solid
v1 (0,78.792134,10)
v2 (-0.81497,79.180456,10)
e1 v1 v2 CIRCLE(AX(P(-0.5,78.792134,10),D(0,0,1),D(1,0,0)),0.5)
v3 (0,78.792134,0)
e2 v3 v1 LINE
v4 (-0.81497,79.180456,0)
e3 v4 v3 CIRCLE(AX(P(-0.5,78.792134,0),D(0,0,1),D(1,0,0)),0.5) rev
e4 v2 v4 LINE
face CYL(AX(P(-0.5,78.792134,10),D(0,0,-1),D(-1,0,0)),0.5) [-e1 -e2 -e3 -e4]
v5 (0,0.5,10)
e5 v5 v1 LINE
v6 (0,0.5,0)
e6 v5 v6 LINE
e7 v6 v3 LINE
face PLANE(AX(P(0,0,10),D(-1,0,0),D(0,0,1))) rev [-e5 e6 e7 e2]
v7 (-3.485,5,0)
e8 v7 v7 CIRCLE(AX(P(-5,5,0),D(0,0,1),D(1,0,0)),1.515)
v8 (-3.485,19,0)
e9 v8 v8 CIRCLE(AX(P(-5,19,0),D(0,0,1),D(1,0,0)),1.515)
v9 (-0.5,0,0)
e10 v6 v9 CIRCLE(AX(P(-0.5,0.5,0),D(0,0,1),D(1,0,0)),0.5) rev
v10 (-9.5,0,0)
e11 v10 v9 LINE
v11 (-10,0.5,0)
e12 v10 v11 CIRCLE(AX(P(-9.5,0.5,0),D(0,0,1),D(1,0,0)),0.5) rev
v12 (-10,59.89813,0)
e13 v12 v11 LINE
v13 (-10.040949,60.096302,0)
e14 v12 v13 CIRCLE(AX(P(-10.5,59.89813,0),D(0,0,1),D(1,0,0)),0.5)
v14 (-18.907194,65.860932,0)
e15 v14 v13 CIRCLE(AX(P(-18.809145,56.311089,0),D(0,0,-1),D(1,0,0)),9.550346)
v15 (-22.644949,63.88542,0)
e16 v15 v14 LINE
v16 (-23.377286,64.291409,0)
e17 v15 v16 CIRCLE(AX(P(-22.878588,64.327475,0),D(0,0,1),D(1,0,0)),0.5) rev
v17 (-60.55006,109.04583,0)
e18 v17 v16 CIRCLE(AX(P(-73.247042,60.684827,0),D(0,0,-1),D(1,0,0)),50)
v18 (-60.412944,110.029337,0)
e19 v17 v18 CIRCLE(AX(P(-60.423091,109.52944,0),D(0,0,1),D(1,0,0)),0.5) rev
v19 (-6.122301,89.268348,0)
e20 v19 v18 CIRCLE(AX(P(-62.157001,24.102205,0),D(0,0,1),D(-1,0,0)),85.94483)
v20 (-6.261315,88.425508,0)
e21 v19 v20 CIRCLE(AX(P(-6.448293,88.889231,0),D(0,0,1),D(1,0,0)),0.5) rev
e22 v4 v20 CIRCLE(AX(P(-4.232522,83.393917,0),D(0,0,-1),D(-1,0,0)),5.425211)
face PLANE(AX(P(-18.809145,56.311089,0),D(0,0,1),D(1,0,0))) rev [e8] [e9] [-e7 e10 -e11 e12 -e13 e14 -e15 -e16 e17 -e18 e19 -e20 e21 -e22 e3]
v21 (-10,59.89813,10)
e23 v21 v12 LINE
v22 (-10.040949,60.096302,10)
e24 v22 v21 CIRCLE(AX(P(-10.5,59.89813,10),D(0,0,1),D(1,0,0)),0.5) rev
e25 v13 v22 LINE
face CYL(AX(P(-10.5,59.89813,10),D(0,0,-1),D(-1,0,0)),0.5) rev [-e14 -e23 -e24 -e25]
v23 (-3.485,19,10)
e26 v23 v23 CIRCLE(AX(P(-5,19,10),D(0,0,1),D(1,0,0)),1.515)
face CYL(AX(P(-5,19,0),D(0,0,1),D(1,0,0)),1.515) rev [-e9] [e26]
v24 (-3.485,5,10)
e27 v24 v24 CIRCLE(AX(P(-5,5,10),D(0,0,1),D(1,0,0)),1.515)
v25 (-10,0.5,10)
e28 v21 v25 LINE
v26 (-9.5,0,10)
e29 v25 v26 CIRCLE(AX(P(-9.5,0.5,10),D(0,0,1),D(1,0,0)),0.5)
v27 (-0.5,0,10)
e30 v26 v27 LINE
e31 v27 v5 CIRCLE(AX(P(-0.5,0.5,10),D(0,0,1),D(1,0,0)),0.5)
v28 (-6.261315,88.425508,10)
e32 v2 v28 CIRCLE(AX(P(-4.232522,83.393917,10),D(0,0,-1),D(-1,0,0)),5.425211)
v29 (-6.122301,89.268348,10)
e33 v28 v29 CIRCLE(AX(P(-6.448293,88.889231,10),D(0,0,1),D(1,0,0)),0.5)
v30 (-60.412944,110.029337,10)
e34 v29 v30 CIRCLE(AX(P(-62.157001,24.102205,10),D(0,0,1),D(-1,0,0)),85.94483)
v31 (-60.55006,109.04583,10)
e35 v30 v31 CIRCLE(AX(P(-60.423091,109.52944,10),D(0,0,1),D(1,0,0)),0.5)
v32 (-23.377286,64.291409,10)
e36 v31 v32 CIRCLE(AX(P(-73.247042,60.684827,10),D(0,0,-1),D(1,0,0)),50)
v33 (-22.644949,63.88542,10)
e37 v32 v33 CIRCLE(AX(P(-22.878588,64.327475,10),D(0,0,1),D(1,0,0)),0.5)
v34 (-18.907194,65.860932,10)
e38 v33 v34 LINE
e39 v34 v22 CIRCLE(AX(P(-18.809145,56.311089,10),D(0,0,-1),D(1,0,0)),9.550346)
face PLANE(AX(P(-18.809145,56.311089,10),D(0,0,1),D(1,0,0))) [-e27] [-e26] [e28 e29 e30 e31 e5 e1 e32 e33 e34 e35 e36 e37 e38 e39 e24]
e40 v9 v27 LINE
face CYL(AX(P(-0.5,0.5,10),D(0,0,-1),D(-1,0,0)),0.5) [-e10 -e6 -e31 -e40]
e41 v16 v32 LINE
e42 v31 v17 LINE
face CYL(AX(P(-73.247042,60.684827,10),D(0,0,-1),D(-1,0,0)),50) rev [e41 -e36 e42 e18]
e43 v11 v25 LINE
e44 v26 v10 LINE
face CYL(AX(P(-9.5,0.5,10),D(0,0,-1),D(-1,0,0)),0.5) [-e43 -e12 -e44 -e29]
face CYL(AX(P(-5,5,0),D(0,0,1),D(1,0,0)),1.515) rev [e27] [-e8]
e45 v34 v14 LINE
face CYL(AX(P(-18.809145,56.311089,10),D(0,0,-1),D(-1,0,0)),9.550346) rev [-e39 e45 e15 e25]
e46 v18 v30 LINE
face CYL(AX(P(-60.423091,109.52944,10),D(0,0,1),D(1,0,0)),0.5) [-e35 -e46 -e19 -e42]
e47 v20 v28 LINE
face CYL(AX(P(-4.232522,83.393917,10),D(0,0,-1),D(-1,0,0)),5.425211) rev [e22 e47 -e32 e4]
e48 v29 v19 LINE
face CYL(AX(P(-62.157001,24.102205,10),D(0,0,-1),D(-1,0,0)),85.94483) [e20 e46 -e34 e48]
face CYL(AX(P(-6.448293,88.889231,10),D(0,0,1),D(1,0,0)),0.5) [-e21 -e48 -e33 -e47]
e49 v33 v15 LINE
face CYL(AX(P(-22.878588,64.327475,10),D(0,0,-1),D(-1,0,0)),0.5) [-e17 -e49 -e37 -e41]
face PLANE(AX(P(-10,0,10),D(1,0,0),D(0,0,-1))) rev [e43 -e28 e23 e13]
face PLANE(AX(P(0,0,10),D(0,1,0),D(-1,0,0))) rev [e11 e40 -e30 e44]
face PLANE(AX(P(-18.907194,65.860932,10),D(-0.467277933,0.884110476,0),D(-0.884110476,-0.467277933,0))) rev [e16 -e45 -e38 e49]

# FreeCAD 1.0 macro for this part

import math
import FreeCAD as App
import Part
import Sketcher


def edges_at(feature, points):
    """Names of the edges that pass closest to the given points."""
    edges = feature.Shape.Edges
    near = lambda p: min(range(len(edges)), key=lambda i: edges[i].distToShape(Part.Vertex(*p))[0])
    return sorted({f"Edge{near(p) + 1}" for p in points})

doc = App.newDocument("Part")
body = doc.addObject("PartDesign::Body", "Body")

# Sketch on XY plane
sketch1 = body.newObject("Sketcher::SketchObject", "Sketch")
sketch1.AttachmentSupport = (doc.getObject("XY_Plane"), [""])
sketch1.MapMode = "FlatFace"
sketch1.addGeometry([
    Part.LineSegment(App.Vector(0, 0, 0), App.Vector(0, 80, 0)),  # 0
    Part.ArcOfCircle(Part.Circle(App.Vector(-4.2, 83.4, 0), App.Vector(0, 0, 1), 5.4), math.radians(103), math.radians(321)),  # 1
    Part.ArcOfCircle(Part.Circle(App.Vector(-62.2, 24.1, 0), App.Vector(0, 0, 1), 85.9), math.radians(49), math.radians(92)),  # 2
    Part.ArcOfCircle(Part.Circle(App.Vector(-73.2, 60.7, 0), App.Vector(0, 0, 1), 50), math.radians(3), math.radians(81)),  # 3
    Part.LineSegment(App.Vector(-23.3, 63.5, 0), App.Vector(-18.9, 65.9, 0)),  # 4
    Part.ArcOfCircle(Part.Circle(App.Vector(-18.8, 56.3, 0), App.Vector(0, 0, 1), 9.6), math.radians(23), math.radians(91)),  # 5
    Part.LineSegment(App.Vector(-10, 60, 0), App.Vector(-10, 0, 0)),  # 6
    Part.LineSegment(App.Vector(-10, 0, 0), App.Vector(0, 0, 0)),  # 7
], False)
sketch1.addConstraint([
    Sketcher.Constraint("Coincident", 0, 2, 1, 2),
    Sketcher.Constraint("Coincident", 1, 1, 2, 1),
    Sketcher.Constraint("Coincident", 2, 2, 3, 2),
    Sketcher.Constraint("Coincident", 3, 1, 4, 1),
    Sketcher.Constraint("Coincident", 4, 2, 5, 2),
    Sketcher.Constraint("Coincident", 5, 1, 6, 1),
    Sketcher.Constraint("Coincident", 6, 2, 7, 1),
    Sketcher.Constraint("Coincident", 7, 2, 0, 1),
    Sketcher.Constraint("Vertical", 0),
    Sketcher.Constraint("Vertical", 6),
    Sketcher.Constraint("Horizontal", 7),
    Sketcher.Constraint("Coincident", 7, 2, -1, 1),
    Sketcher.Constraint("Radius", 3, 50.0),
    Sketcher.Constraint("DistanceX", 7, 1, 7, 2, 10.0),
    Sketcher.Constraint("DistanceY", 0, 1, 0, 2, 80.0),
    Sketcher.Constraint("DistanceY", 6, 2, 6, 1, 60.0),
    Sketcher.Constraint("Distance", 4, 5.0),
    Sketcher.Constraint("DistanceX", 2, 2, -1, 1, 65.0),
    Sketcher.Constraint("DistanceY", -1, 1, 2, 2, 110.0),
    Sketcher.Constraint("Radius", 1, 5.425211),
    Sketcher.Constraint("Radius", 2, 85.94483),
    Sketcher.Constraint("DistanceX", 2, 3, -1, 1, 62.157001),
    Sketcher.Constraint("Radius", 5, 9.550346),
    Sketcher.Constraint("DistanceX", 1, 1, 1, 3, 1.214399),
    Sketcher.Constraint("DistanceX", 3, 1, 5, 3, 4.518602),
    Sketcher.Constraint("DistanceX", 3, 3, -1, 1, 73.247042),
    Sketcher.Constraint("DistanceY", -1, 1, 5, 3, 56.311089),
])
pad1 = body.newObject("PartDesign::Pad", "Pad")
pad1.Profile = sketch1
pad1.Length = 10
doc.recompute()

fillet = body.newObject("PartDesign::Fillet", "Fillet")
fillet.Base = (pad1, edges_at(pad1, [
    (-10, 60, 5),
    (-23.328, 63.525, 5),
    (-65, 110, 5),
    (-5.447, 88.681, 5),
    (0, 80, 5),
]))
fillet.Radius = 0.5

# Sketch on XY plane
sketch2 = body.newObject("Sketcher::SketchObject", "Sketch001")
sketch2.AttachmentSupport = (doc.getObject("XY_Plane"), [""])
sketch2.MapMode = "FlatFace"
sketch2.AttachmentOffset = App.Placement(App.Vector(0, 0, 10), App.Rotation())
sketch2.addGeometry([
    Part.Circle(App.Vector(-5, 5, 0), App.Vector(0, 0, 1), 1.5),
    Part.Circle(App.Vector(-5, 19, 0), App.Vector(0, 0, 1), 1.5),
], False)
sketch2.addConstraint([
    Sketcher.Constraint("Equal", 0, 1),
    Sketcher.Constraint("Vertical", 0, 3, 1, 3),
    Sketcher.Constraint("Diameter", 0, 3.03),
    Sketcher.Constraint("DistanceX", 0, 3, -1, 1, 5.0),
    Sketcher.Constraint("DistanceY", -1, 1, 0, 3, 5.0),
    Sketcher.Constraint("DistanceY", -1, 1, 1, 3, 19.0),
])
pocket1 = body.newObject("PartDesign::Pocket", "Pocket")
pocket1.Profile = sketch2
pocket1.Type = "ThroughAll"
doc.recompute()

fillet2 = body.newObject("PartDesign::Fillet", "Fillet001")
fillet2.Base = (pocket1, edges_at(pocket1, [(-10, 0, 5), (0, 0, 5)]))
fillet2.Radius = 0.5

doc.recompute()
